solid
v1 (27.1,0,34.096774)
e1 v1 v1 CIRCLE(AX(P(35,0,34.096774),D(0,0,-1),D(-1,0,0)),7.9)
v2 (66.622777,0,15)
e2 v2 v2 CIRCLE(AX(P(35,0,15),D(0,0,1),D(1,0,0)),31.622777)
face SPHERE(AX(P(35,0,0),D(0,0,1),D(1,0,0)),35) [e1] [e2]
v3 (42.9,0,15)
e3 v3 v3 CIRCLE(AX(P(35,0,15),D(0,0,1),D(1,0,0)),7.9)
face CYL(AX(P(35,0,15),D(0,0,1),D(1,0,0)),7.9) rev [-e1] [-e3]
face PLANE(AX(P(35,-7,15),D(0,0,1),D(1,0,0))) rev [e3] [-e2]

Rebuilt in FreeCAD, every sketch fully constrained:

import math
import FreeCAD as App
import Part
import Sketcher


def add_polygon(sketch, points):
    """Adds a closed chain of lines whose ends are joined by coincident constraints."""
    first, n = sketch.GeometryCount, len(points)
    for a, b in zip(points, points[1:] + points[:1]):
        sketch.addGeometry(Part.LineSegment(App.Vector(*a, 0), App.Vector(*b, 0)), False)
    for i in range(n):
        sketch.addConstraint(Sketcher.Constraint("Coincident", first + i, 2, first + (i + 1) % n, 1))

doc = App.newDocument("Part")
body = doc.addObject("PartDesign::Body", "Body")

# Sketch on XY plane
sketch1 = body.newObject("Sketcher::SketchObject", "Sketch")
sketch1.AttachmentSupport = (doc.getObject("XY_Plane"), [""])
sketch1.MapMode = "FlatFace"
sketch1.addGeometry([
    Part.LineSegment(App.Vector(0, 0, 0), App.Vector(70, 0, 0)),
    Part.ArcOfCircle(Part.Circle(App.Vector(35, 0, 0), App.Vector(0, 0, 1), 35), math.radians(0), math.radians(180)),
], False)
sketch1.addConstraint([
    Sketcher.Constraint("Coincident", 0, 1, 1, 2),
    Sketcher.Constraint("Coincident", 1, 1, 0, 2),
    Sketcher.Constraint("Horizontal", 0),
    Sketcher.Constraint("Coincident", 0, 1, -1, 1),
    Sketcher.Constraint("PointOnObject", 1, 3, -1),
    Sketcher.Constraint("Radius", 1, 35.0),
])
revolution = body.newObject("PartDesign::Revolution", "Revolution")
revolution.Profile = sketch1
revolution.ReferenceAxis = (sketch1, ["H_Axis"])
revolution.Angle = 360

# Sketch on XY plane
sketch2 = body.newObject("Sketcher::SketchObject", "Sketch001")
sketch2.AttachmentSupport = (doc.getObject("XY_Plane"), [""])
sketch2.MapMode = "FlatFace"
sketch2.AttachmentOffset = App.Placement(App.Vector(0, 0, -5), App.Rotation())
sketch2.addGeometry([
    Part.Circle(App.Vector(35, -7, 0), App.Vector(0, 0, 1), 22.5),
    Part.Circle(App.Vector(17.5, -7, 0), App.Vector(0, 0, 1), 1),
    Part.Circle(App.Vector(52.5, -7, 0), App.Vector(0, 0, 1), 1),
], False)
sketch2.addConstraint([
    Sketcher.Constraint("Equal", 1, 2),
    Sketcher.Constraint("Horizontal", 0, 3, 1, 3),
    Sketcher.Constraint("Horizontal", 1, 3, 2, 3),
    Sketcher.Constraint("Diameter", 0, 45.0),
    Sketcher.Constraint("Diameter", 1, 2.0),
    Sketcher.Constraint("DistanceX", -1, 1, 0, 3, 35.0),
    Sketcher.Constraint("DistanceY", 0, 3, -1, 1, 7.0),
    Sketcher.Constraint("DistanceX", 1, 3, 2, 3, 35.0),
    Sketcher.Constraint("DistanceX", -1, 1, 1, 3, 17.5),
])
pocket1 = body.newObject("PartDesign::Pocket", "Pocket")
pocket1.Profile = sketch2
pocket1.Length = 20
pocket1.Reversed = True

# Sketch on XY plane
sketch3 = body.newObject("Sketcher::SketchObject", "Sketch002")
sketch3.AttachmentSupport = (doc.getObject("XY_Plane"), [""])
sketch3.MapMode = "FlatFace"
sketch3.AttachmentOffset = App.Placement(App.Vector(0, 0, 35), App.Rotation())
sketch3.addGeometry(Part.Circle(App.Vector(35, 0, 0), App.Vector(0, 0, 1), 7.9), False)
sketch3.addConstraint([
    Sketcher.Constraint("PointOnObject", 0, 3, -1),
    Sketcher.Constraint("Diameter", 0, 15.8),
    Sketcher.Constraint("DistanceX", -1, 1, 0, 3, 35.0),
])
pocket2 = body.newObject("PartDesign::Pocket", "Pocket001")
pocket2.Profile = sketch3
pocket2.Length = 20

# Sketch on XY plane
sketch4 = body.newObject("Sketcher::SketchObject", "Sketch003")
sketch4.AttachmentSupport = (doc.getObject("XY_Plane"), [""])
sketch4.MapMode = "FlatFace"
sketch4.AttachmentOffset = App.Placement(App.Vector(0, 0, -35), App.Rotation())
add_polygon(sketch4, [(-1.998114, 37.2014), (-1.998114, -37.404687), (72.912903, -37.404687), (72.912903, 37.2014)])  # lines 0-3
sketch4.addConstraint([
    Sketcher.Constraint("Vertical", 0),
    Sketcher.Constraint("Horizontal", 1),
    Sketcher.Constraint("Vertical", 2),
    Sketcher.Constraint("Horizontal", 3),
    Sketcher.Constraint("DistanceY", -1, 1, 2, 2, 37.2014),
    Sketcher.Constraint("DistanceX", 1, 1, 1, 2, 74.911017),
    Sketcher.Constraint("DistanceY", 0, 2, 0, 1, 74.606087),
    Sketcher.Constraint("DistanceX", 0, 2, -1, 1, 1.998114),
])
pocket3 = body.newObject("PartDesign::Pocket", "Pocket002")
pocket3.Profile = sketch4
pocket3.Length = 50
pocket3.Reversed = True

doc.recompute()
